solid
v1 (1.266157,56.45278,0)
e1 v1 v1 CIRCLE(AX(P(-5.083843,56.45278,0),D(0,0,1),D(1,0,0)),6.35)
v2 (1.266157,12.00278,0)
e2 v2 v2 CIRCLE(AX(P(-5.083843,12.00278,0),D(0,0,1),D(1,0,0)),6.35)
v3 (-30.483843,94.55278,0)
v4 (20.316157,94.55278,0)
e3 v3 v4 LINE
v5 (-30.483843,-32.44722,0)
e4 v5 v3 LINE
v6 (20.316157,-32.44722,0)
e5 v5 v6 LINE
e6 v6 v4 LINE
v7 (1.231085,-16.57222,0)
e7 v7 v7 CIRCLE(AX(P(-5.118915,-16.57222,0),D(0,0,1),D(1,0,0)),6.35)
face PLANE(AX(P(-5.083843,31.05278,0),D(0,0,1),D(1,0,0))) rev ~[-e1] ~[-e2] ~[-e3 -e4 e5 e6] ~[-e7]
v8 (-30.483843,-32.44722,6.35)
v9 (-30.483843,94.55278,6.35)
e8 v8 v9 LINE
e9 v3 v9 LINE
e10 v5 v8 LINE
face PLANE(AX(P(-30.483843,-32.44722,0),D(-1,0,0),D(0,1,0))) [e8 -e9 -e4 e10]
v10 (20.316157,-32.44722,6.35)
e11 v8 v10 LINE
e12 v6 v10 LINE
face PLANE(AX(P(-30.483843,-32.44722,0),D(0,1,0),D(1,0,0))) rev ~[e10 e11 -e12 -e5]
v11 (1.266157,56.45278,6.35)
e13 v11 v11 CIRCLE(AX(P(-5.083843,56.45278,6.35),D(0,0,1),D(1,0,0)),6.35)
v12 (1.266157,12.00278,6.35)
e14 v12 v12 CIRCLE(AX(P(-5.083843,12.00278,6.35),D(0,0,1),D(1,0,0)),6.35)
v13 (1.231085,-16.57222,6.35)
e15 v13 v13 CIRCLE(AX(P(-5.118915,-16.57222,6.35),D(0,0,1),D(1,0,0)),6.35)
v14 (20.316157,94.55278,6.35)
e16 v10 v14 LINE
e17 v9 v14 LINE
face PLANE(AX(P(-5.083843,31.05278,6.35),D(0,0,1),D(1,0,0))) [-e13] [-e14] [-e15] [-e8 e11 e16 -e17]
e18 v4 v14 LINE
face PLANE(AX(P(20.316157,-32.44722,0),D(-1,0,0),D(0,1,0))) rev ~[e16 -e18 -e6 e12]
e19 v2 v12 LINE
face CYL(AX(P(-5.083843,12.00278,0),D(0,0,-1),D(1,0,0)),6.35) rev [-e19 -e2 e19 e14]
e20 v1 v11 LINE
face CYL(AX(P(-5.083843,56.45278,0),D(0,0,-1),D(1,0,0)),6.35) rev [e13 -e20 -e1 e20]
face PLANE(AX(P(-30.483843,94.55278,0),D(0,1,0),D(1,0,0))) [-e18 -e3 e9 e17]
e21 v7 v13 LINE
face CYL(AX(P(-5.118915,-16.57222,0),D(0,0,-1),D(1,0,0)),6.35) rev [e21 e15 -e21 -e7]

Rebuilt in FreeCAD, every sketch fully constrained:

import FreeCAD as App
import Part
import Sketcher

V = App.Vector
Q = App.Units.Quantity


def add_polygon(sketch, points):
    """Adds a closed chain of lines whose ends are joined by coincident constraints."""
    first, n = sketch.GeometryCount, len(points)
    for a, b in zip(points, points[1:] + points[:1]):
        sketch.addGeometry(Part.LineSegment(App.Vector(*a, 0), App.Vector(*b, 0)), False)
    for i in range(n):
        sketch.addConstraint(Sketcher.Constraint("Coincident", first + i, 2, first + (i + 1) % n, 1))

doc = App.newDocument("Part")
body = doc.addObject("PartDesign::Body", "Body")

# Sketch on XY plane
sketch1 = body.newObject("Sketcher::SketchObject", "Sketch")
sketch1.AttachmentSupport = (doc.getObject("XY_Plane"), [""])
sketch1.MapMode = "FlatFace"
add_polygon(sketch1, [(-30, 95), (-30, -32), (20, -32), (20, 95)])  # lines 0-3
sketch1.addGeometry(Part.Circle(V(-5, -17, 0), V(0, 0, 1), 6), False)  # 4
sketch1.addGeometry(Part.Circle(V(-5, 12, 0), V(0, 0, 1), 6), False)  # 5
sketch1.addGeometry(Part.Circle(V(-5, 56, 0), V(0, 0, 1), 6), False)  # 6
sketch1.addConstraint(Sketcher.Constraint("Vertical", 0))
sketch1.addConstraint(Sketcher.Constraint("Horizontal", 1))
sketch1.addConstraint(Sketcher.Constraint("Vertical", 2))
sketch1.addConstraint(Sketcher.Constraint("Horizontal", 3))
sketch1.addConstraint(Sketcher.Constraint("Equal", 4, 5))
sketch1.addConstraint(Sketcher.Constraint("Equal", 5, 6))
sketch1.addConstraint(Sketcher.Constraint("Vertical", 5, 3, 6, 3))
sketch1.addConstraint(Sketcher.Constraint("Diameter", 4, Q("0.5 in")))
sketch1.addConstraint(Sketcher.Constraint("DistanceX", 1, 1, 1, 2, Q("2 in")))
sketch1.addConstraint(Sketcher.Constraint("DistanceY", 0, 2, 0, 1, Q("5 in")))
sketch1.addConstraint(Sketcher.Constraint("DistanceX", 0, 2, 5, 3, Q("1 in")))
sketch1.addConstraint(Sketcher.Constraint("DistanceY", 0, 2, 6, 3, Q("3.5 in")))
sketch1.addConstraint(Sketcher.Constraint("DistanceY", 5, 3, 6, 3, Q("1.75 in")))
sketch1.addConstraint(Sketcher.Constraint("DistanceY", 4, 3, 5, 3, Q("1.125 in")))
sketch1.addConstraint(Sketcher.Constraint("DistanceY", 4, 3, -1, 1, Q("16.57222 mm")))
sketch1.addConstraint(Sketcher.Constraint("DistanceX", 4, 3, -1, 1, Q("5.118915 mm")))
sketch1.addConstraint(Sketcher.Constraint("DistanceX", 5, 3, -1, 1, Q("5.083843 mm")))
pad1 = body.newObject("PartDesign::Pad", "Pad")
pad1.Profile = sketch1
pad1.Length = Q("0.25 in")

doc.recompute()
